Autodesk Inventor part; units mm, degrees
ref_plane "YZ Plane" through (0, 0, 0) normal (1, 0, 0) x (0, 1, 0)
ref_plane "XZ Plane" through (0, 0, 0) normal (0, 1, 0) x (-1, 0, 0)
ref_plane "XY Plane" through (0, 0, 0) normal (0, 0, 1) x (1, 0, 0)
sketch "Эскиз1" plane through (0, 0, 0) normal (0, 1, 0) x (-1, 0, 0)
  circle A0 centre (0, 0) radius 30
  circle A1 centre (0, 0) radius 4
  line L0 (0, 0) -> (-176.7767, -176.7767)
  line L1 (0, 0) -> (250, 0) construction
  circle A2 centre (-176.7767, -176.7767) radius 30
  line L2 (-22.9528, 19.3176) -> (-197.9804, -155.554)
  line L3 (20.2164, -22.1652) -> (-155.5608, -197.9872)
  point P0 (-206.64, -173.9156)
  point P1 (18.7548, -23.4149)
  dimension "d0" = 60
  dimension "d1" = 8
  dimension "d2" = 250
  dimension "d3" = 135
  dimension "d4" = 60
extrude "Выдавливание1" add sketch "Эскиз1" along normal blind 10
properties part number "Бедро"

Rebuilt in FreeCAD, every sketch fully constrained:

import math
import FreeCAD as App
import Part
import Sketcher

doc = App.newDocument("Part")
params = doc.addObject("Spreadsheet::Sheet", "Params")
for row, (alias, value) in enumerate([
    ("sketch1_diameter", "8 mm"),
    ("sketch1_radius", "30 mm"),
    ("pad1_length", "10 mm"),
], start=1):
    params.set(f"A{row}", alias)
    params.set(f"B{row}", "=" + value)
    params.setAlias(f"B{row}", alias)

body = doc.addObject("PartDesign::Body", "Body")

sketch1 = body.newObject("Sketcher::SketchObject", "Sketch")
sketch1.AttachmentSupport = (doc.getObject("XZ_Plane"), [""])
sketch1.MapMode = "FlatFace"
sketch1.addGeometry([
    Part.ArcOfCircle(Part.Circle(App.Vector(0, 0, 0), App.Vector(0, 0, 1), 30), math.radians(40.08473), math.radians(227.632733)),
    Part.LineSegment(App.Vector(22.9528, 19.3176, 0), App.Vector(197.9804, -155.554, 0)),
    Part.ArcOfCircle(Part.Circle(App.Vector(176.7767, -176.7767, 0), App.Vector(0, 0, 1), 30), math.radians(-135.007293), math.radians(45.025659)),
    Part.LineSegment(App.Vector(155.5608, -197.9872, 0), App.Vector(-20.2164, -22.1652, 0)),
    Part.Circle(App.Vector(0, 0, 0), App.Vector(0, 0, 1), 4),
], False)
sketch1.addConstraint([
    Sketcher.Constraint("Coincident", 0, 1, 1, 1),
    Sketcher.Constraint("Tangent", 1, 2, 2, 2),
    Sketcher.Constraint("Tangent", 2, 1, 3, 1),
    Sketcher.Constraint("Coincident", 3, 2, 0, 2),
    Sketcher.Constraint("Coincident", 0, 3, -1, 1),
    Sketcher.Constraint("Coincident", 4, 3, -1, 1),
    Sketcher.Constraint("Equal", 0, 2),
    Sketcher.Constraint("Diameter", 4, 8.0),
    Sketcher.Constraint("Radius", 0, 30.0),
    Sketcher.Constraint("DistanceY", 1, 2, -1, 1, 155.554),
    Sketcher.Constraint("DistanceX", 0, 1, 2, 3, 153.824),
    Sketcher.Constraint("DistanceY", 2, 1, 3, 2, 175.822),
    Sketcher.Constraint("DistanceX", 3, 2, 2, 3, 196.993),
])
sketch1.setExpression("Constraints[7]", "Params.sketch1_diameter")
sketch1.setExpression("Constraints[8]", "Params.sketch1_radius")
pad1 = body.newObject("PartDesign::Pad", "Pad")
pad1.Profile = sketch1
pad1.setExpression("Length", "Params.pad1_length")
pad1.Reversed = True

doc.recompute()
